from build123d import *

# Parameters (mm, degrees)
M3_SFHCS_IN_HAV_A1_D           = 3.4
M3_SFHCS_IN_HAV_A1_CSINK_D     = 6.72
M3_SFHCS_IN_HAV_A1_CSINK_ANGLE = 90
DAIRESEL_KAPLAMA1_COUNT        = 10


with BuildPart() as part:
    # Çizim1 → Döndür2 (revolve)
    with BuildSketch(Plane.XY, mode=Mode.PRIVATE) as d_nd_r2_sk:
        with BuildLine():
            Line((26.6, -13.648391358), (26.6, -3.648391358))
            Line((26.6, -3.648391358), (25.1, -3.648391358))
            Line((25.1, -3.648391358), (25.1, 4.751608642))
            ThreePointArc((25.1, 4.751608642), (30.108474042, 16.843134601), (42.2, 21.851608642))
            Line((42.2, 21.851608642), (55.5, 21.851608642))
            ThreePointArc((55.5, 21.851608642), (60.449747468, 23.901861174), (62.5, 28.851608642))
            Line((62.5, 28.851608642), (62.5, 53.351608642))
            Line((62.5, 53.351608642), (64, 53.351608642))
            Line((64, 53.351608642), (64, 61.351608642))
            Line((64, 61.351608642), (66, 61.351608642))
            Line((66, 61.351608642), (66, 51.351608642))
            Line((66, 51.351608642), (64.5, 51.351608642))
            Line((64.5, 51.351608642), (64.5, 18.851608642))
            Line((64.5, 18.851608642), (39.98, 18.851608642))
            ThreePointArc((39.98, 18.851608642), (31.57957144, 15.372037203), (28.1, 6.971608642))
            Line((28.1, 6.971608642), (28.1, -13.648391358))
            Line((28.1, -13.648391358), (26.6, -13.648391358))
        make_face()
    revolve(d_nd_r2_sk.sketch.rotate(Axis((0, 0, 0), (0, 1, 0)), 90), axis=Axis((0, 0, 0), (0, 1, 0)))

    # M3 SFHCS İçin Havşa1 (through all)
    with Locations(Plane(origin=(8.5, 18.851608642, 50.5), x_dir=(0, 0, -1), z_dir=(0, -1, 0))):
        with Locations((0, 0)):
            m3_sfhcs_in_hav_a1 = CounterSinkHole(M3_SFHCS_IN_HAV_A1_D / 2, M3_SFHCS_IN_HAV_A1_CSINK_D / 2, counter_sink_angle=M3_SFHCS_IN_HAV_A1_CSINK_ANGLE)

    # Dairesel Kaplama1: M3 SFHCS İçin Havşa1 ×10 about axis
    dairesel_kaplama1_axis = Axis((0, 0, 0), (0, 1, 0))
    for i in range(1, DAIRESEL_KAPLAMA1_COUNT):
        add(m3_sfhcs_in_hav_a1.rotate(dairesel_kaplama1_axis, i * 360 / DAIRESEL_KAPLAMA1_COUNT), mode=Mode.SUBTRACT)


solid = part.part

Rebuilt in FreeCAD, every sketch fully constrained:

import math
import FreeCAD as App
import Part
import Sketcher
Q = App.Units.Quantity

doc = App.newDocument("Part")
body = doc.addObject("PartDesign::Body", "Body")

sketch1 = body.newObject("Sketcher::SketchObject", "Sketch")
sketch1.AttachmentSupport = (doc.getObject("XY_Plane"), [""])
sketch1.MapMode = "FlatFace"
sketch1.addGeometry([
    Part.LineSegment(App.Vector(26.6, -3.648391, 0), App.Vector(26.6, -13.648391, 0)),
    Part.LineSegment(App.Vector(26.6, -13.648391, 0), App.Vector(28.1, -13.648391, 0)),
    Part.LineSegment(App.Vector(28.1, -13.648391, 0), App.Vector(28.1, 6.971609, 0)),
    Part.ArcOfCircle(Part.Circle(App.Vector(39.98, 6.971609, 0), App.Vector(0, 0, 1), 11.88), math.radians(90), math.radians(180)),
    Part.LineSegment(App.Vector(39.98, 18.851609, 0), App.Vector(64.5, 18.851609, 0)),
    Part.LineSegment(App.Vector(64.5, 18.851609, 0), App.Vector(64.5, 51.351609, 0)),
    Part.LineSegment(App.Vector(64.5, 51.351609, 0), App.Vector(66, 51.351609, 0)),
    Part.LineSegment(App.Vector(66, 51.351609, 0), App.Vector(66, 61.351609, 0)),
    Part.LineSegment(App.Vector(66, 61.351609, 0), App.Vector(64, 61.351609, 0)),
    Part.LineSegment(App.Vector(64, 61.351609, 0), App.Vector(64, 53.351609, 0)),
    Part.LineSegment(App.Vector(64, 53.351609, 0), App.Vector(62.5, 53.351609, 0)),
    Part.LineSegment(App.Vector(62.5, 53.351609, 0), App.Vector(62.5, 28.851609, 0)),
    Part.ArcOfCircle(Part.Circle(App.Vector(55.5, 28.851609, 0), App.Vector(0, 0, 1), 7), math.radians(-90), math.radians(0)),
    Part.LineSegment(App.Vector(55.5, 21.851609, 0), App.Vector(42.2, 21.851609, 0)),
    Part.ArcOfCircle(Part.Circle(App.Vector(42.2, 4.751609, 0), App.Vector(0, 0, 1), 17.1), math.radians(90), math.radians(180)),
    Part.LineSegment(App.Vector(25.1, 4.751609, 0), App.Vector(25.1, -3.648391, 0)),
    Part.LineSegment(App.Vector(25.1, -3.648391, 0), App.Vector(26.6, -3.648391, 0)),
], False)
sketch1.addConstraint([
    Sketcher.Constraint("Coincident", 0, 2, 1, 1),
    Sketcher.Constraint("Coincident", 1, 2, 2, 1),
    Sketcher.Constraint("Tangent", 2, 2, 3, 2),
    Sketcher.Constraint("Tangent", 3, 1, 4, 1),
    Sketcher.Constraint("Coincident", 4, 2, 5, 1),
    Sketcher.Constraint("Coincident", 5, 2, 6, 1),
    Sketcher.Constraint("Coincident", 6, 2, 7, 1),
    Sketcher.Constraint("Coincident", 7, 2, 8, 1),
    Sketcher.Constraint("Coincident", 8, 2, 9, 1),
    Sketcher.Constraint("Coincident", 9, 2, 10, 1),
    Sketcher.Constraint("Coincident", 10, 2, 11, 1),
    Sketcher.Constraint("Tangent", 11, 2, 12, 2),
    Sketcher.Constraint("Tangent", 12, 1, 13, 1),
    Sketcher.Constraint("Tangent", 13, 2, 14, 1),
    Sketcher.Constraint("Tangent", 14, 2, 15, 1),
    Sketcher.Constraint("Coincident", 15, 2, 16, 1),
    Sketcher.Constraint("Coincident", 16, 2, 0, 1),
    Sketcher.Constraint("Vertical", 0),
    Sketcher.Constraint("Horizontal", 1),
    Sketcher.Constraint("Vertical", 2),
    Sketcher.Constraint("Horizontal", 4),
    Sketcher.Constraint("Vertical", 5),
    Sketcher.Constraint("Horizontal", 6),
    Sketcher.Constraint("Vertical", 7),
    Sketcher.Constraint("Horizontal", 8),
    Sketcher.Constraint("Vertical", 9),
    Sketcher.Constraint("Horizontal", 10),
    Sketcher.Constraint("Vertical", 11),
    Sketcher.Constraint("Horizontal", 13),
    Sketcher.Constraint("Vertical", 15),
    Sketcher.Constraint("Horizontal", 16),
    Sketcher.Constraint("Equal", 1, 6),
    Sketcher.Constraint("Equal", 6, 10),
    Sketcher.Constraint("Equal", 10, 16),
    Sketcher.Constraint("Equal", 0, 7),
    Sketcher.Constraint("Radius", 12, Q("7 mm")),
    Sketcher.Constraint("Radius", 14, Q("17.1 mm")),
    Sketcher.Constraint("DistanceX", 8, 2, 8, 1, Q("2 mm")),
    Sketcher.Constraint("DistanceY", 0, 2, 0, 1, Q("10 mm")),
    Sketcher.Constraint("DistanceY", 9, 2, 9, 1, Q("8 mm")),
    Sketcher.Constraint("Radius", 3, Q("11.88 mm")),
    Sketcher.Constraint("DistanceX", 1, 1, 1, 2, Q("1.5 mm")),
    Sketcher.Constraint("DistanceX", 13, 2, 13, 1, Q("13.3 mm")),
    Sketcher.Constraint("DistanceY", 5, 1, 5, 2, Q("32.5 mm")),
    Sketcher.Constraint("DistanceY", 11, 2, 11, 1, Q("24.5 mm")),
    Sketcher.Constraint("DistanceY", 15, 2, 15, 1, Q("8.4 mm")),
    Sketcher.Constraint("DistanceX", -1, 1, 6, 2, Q("66 mm")),
    Sketcher.Constraint("DistanceY", -1, 1, 3, 3, Q("6.971609 mm")),
])
revolution = body.newObject("PartDesign::Revolution", "Revolution")
revolution.Profile = sketch1
revolution.ReferenceAxis = (sketch1, ["V_Axis"])
revolution.Angle = 360

sketch2 = body.newObject("Sketcher::SketchObject", "Sketch001")
sketch2.AttachmentSupport = (doc.getObject("XZ_Plane"), [""])
sketch2.MapMode = "FlatFace"
sketch2.AttachmentOffset = App.Placement(App.Vector(0, 0, -18.851609), App.Rotation())
sketch2.addGeometry(Part.Circle(App.Vector(8.5, 50.5, 0), App.Vector(0, 0, 1), 1.7), False)
sketch2.addConstraint([
    Sketcher.Constraint("Diameter", 0, Q("3.4 mm")),
    Sketcher.Constraint("DistanceX", -1, 1, 0, 3, Q("8.5 mm")),
    Sketcher.Constraint("DistanceY", -1, 1, 0, 3, Q("50.5 mm")),
])
doc.recompute()
hole = body.newObject("PartDesign::Hole", "Hole")
hole.Profile = sketch2
hole.ThreadType = "None"
hole.Diameter = 3.4
hole.DepthType = "ThroughAll"
hole.HoleCutType = "Countersink"
hole.HoleCutDiameter = 6.72
hole.HoleCutCountersinkAngle = 90
doc.recompute()

polarpattern = body.newObject("PartDesign::PolarPattern", "PolarPattern")
polarpattern.Originals = [hole]
polarpattern.Axis = (doc.getObject("Y_Axis"), [""])
polarpattern.Angle = 360
polarpattern.Occurrences = 10
body.Tip = polarpattern

doc.recompute()
